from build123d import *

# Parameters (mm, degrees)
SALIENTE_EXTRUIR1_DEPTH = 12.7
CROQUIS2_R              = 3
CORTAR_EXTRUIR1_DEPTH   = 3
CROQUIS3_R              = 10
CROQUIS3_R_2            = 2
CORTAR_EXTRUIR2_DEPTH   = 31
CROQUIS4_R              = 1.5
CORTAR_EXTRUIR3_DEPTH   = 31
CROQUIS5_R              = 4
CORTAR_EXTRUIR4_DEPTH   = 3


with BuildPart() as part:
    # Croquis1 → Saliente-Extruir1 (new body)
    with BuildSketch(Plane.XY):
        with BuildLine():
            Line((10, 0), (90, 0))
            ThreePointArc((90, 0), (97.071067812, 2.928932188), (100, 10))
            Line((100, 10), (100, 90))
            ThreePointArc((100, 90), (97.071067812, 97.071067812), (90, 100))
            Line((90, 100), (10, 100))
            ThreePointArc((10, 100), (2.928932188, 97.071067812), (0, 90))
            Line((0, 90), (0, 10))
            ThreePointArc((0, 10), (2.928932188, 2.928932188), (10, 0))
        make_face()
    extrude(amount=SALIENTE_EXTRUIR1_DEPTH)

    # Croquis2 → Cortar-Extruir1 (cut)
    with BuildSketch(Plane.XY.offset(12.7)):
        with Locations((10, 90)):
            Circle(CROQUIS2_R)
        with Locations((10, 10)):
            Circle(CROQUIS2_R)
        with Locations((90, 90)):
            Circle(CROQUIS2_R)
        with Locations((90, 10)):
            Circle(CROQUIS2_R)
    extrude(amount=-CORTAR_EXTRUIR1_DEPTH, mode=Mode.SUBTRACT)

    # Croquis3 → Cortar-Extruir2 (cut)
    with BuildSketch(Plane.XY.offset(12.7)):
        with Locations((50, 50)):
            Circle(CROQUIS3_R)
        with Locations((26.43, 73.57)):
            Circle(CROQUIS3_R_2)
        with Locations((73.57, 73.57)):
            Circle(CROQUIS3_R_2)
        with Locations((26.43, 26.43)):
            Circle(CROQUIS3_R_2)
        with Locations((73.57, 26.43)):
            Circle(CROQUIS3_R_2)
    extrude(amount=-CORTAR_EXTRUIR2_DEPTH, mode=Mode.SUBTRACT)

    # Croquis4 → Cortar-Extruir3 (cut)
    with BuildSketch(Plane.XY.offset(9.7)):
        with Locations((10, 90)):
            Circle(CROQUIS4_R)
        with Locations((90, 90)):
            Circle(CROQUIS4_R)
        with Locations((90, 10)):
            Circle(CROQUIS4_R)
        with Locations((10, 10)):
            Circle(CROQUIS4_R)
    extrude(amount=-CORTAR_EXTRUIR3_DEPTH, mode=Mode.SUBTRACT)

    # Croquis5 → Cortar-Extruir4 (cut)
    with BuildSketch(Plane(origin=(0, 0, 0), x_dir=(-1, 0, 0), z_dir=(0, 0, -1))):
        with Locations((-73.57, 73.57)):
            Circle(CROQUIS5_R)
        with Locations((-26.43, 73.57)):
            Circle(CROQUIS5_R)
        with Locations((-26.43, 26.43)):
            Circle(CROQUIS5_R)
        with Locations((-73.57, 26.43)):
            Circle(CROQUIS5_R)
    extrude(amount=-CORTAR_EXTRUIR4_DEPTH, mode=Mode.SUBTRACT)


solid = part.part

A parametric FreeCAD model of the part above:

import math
import FreeCAD as App
import Part
import Sketcher
Q = App.Units.Quantity

doc = App.newDocument("Part")
body = doc.addObject("PartDesign::Body", "Body")

# Sketch on XY plane
sketch1 = body.newObject("Sketcher::SketchObject", "Sketch")
sketch1.AttachmentSupport = (doc.getObject("XY_Plane"), [""])
sketch1.MapMode = "FlatFace"
sketch1.addGeometry([
    Part.LineSegment(App.Vector(10, 0, 0), App.Vector(90, 0, 0)),  # 0
    Part.ArcOfCircle(Part.Circle(App.Vector(90, 10, 0), App.Vector(0, 0, 1), 10), math.radians(-90), math.radians(0)),  # 1
    Part.LineSegment(App.Vector(100, 10, 0), App.Vector(100, 90, 0)),  # 2
    Part.ArcOfCircle(Part.Circle(App.Vector(90, 90, 0), App.Vector(0, 0, 1), 10), math.radians(0), math.radians(90)),  # 3
    Part.LineSegment(App.Vector(90, 100, 0), App.Vector(10, 100, 0)),  # 4
    Part.ArcOfCircle(Part.Circle(App.Vector(10, 90, 0), App.Vector(0, 0, 1), 10), math.radians(90), math.radians(180)),  # 5
    Part.LineSegment(App.Vector(0, 90, 0), App.Vector(0, 10, 0)),  # 6
    Part.ArcOfCircle(Part.Circle(App.Vector(10, 10, 0), App.Vector(0, 0, 1), 10), math.radians(180), math.radians(270)),  # 7
], False)
sketch1.addConstraint([
    Sketcher.Constraint("Tangent", 0, 2, 1, 1),
    Sketcher.Constraint("Tangent", 1, 2, 2, 1),
    Sketcher.Constraint("Tangent", 2, 2, 3, 1),
    Sketcher.Constraint("Tangent", 3, 2, 4, 1),
    Sketcher.Constraint("Tangent", 4, 2, 5, 1),
    Sketcher.Constraint("Tangent", 5, 2, 6, 1),
    Sketcher.Constraint("Tangent", 6, 2, 7, 1),
    Sketcher.Constraint("Tangent", 7, 2, 0, 1),
    Sketcher.Constraint("Horizontal", 0),
    Sketcher.Constraint("Vertical", 2),
    Sketcher.Constraint("Horizontal", 4),
    Sketcher.Constraint("Vertical", 6),
    Sketcher.Constraint("Equal", 1, 3),
    Sketcher.Constraint("Equal", 3, 5),
    Sketcher.Constraint("Equal", 5, 7),
    Sketcher.Constraint("PointOnObject", 0, 2, -1),
    Sketcher.Constraint("PointOnObject", 5, 2, -2),
    Sketcher.Constraint("Equal", 4, 2),
    Sketcher.Constraint("Radius", 1, Q("10 mm")),
    Sketcher.Constraint("DistanceX", 0, 1, 0, 2, Q("80 mm")),
])
pad1 = body.newObject("PartDesign::Pad", "Pad")
pad1.Profile = sketch1
pad1.Length = 12.7

# Sketch on XY plane
sketch2 = body.newObject("Sketcher::SketchObject", "Sketch001")
sketch2.AttachmentSupport = (doc.getObject("XY_Plane"), [""])
sketch2.MapMode = "FlatFace"
sketch2.AttachmentOffset = App.Placement(App.Vector(0, 0, 12.7), App.Rotation())
sketch2.addGeometry([
    Part.Circle(App.Vector(10, 90, 0), App.Vector(0, 0, 1), 3),
    Part.Circle(App.Vector(10, 10, 0), App.Vector(0, 0, 1), 3),
    Part.Circle(App.Vector(90, 90, 0), App.Vector(0, 0, 1), 3),
    Part.Circle(App.Vector(90, 10, 0), App.Vector(0, 0, 1), 3),
], False)
sketch2.addConstraint([
    Sketcher.Constraint("Equal", 0, 1),
    Sketcher.Constraint("Equal", 1, 2),
    Sketcher.Constraint("Equal", 2, 3),
    Sketcher.Constraint("Horizontal", 0, 3, 2, 3),
    Sketcher.Constraint("Horizontal", 1, 3, 3, 3),
    Sketcher.Constraint("Vertical", 0, 3, 1, 3),
    Sketcher.Constraint("Vertical", 2, 3, 3, 3),
    Sketcher.Constraint("Diameter", 0, Q("6 mm")),
    Sketcher.Constraint("DistanceX", -1, 1, 0, 3, Q("10 mm")),
    Sketcher.Constraint("DistanceY", -1, 1, 0, 3, Q("90 mm")),
    Sketcher.Constraint("DistanceY", -1, 1, 1, 3, Q("10 mm")),
    Sketcher.Constraint("DistanceX", -1, 1, 2, 3, Q("90 mm")),
])
pocket1 = body.newObject("PartDesign::Pocket", "Pocket")
pocket1.Profile = sketch2
pocket1.Length = 3

# Sketch on XY plane
sketch3 = body.newObject("Sketcher::SketchObject", "Sketch002")
sketch3.AttachmentSupport = (doc.getObject("XY_Plane"), [""])
sketch3.MapMode = "FlatFace"
sketch3.AttachmentOffset = App.Placement(App.Vector(0, 0, 12.7), App.Rotation())
sketch3.addGeometry([
    Part.Circle(App.Vector(50, 50, 0), App.Vector(0, 0, 1), 10),  # 0
    Part.Circle(App.Vector(26.43, 73.57, 0), App.Vector(0, 0, 1), 2),  # 1
    Part.Circle(App.Vector(73.57, 73.57, 0), App.Vector(0, 0, 1), 2),  # 2
    Part.Circle(App.Vector(26.43, 26.43, 0), App.Vector(0, 0, 1), 2),  # 3
    Part.Circle(App.Vector(73.57, 26.43, 0), App.Vector(0, 0, 1), 2),  # 4
], False)
sketch3.addConstraint([
    Sketcher.Constraint("Equal", 1, 2),
    Sketcher.Constraint("Equal", 2, 3),
    Sketcher.Constraint("Equal", 3, 4),
    Sketcher.Constraint("Horizontal", 1, 3, 2, 3),
    Sketcher.Constraint("Horizontal", 3, 3, 4, 3),
    Sketcher.Constraint("Vertical", 1, 3, 3, 3),
    Sketcher.Constraint("Vertical", 2, 3, 4, 3),
    Sketcher.Constraint("Diameter", 0, Q("20 mm")),
    Sketcher.Constraint("Diameter", 1, Q("4 mm")),
    Sketcher.Constraint("DistanceX", -1, 1, 0, 3, Q("50 mm")),
    Sketcher.Constraint("DistanceY", -1, 1, 0, 3, Q("50 mm")),
    Sketcher.Constraint("DistanceX", -1, 1, 1, 3, Q("26.43 mm")),
    Sketcher.Constraint("DistanceY", -1, 1, 1, 3, Q("73.57 mm")),
    Sketcher.Constraint("DistanceX", -1, 1, 2, 3, Q("73.57 mm")),
    Sketcher.Constraint("DistanceY", -1, 1, 3, 3, Q("26.43 mm")),
])
pocket2 = body.newObject("PartDesign::Pocket", "Pocket001")
pocket2.Profile = sketch3
pocket2.Length = 31

# Sketch on XY plane
sketch4 = body.newObject("Sketcher::SketchObject", "Sketch003")
sketch4.AttachmentSupport = (doc.getObject("XY_Plane"), [""])
sketch4.MapMode = "FlatFace"
sketch4.AttachmentOffset = App.Placement(App.Vector(0, 0, 9.7), App.Rotation())
sketch4.addGeometry([
    Part.Circle(App.Vector(10, 90, 0), App.Vector(0, 0, 1), 1.5),
    Part.Circle(App.Vector(90, 90, 0), App.Vector(0, 0, 1), 1.5),
    Part.Circle(App.Vector(90, 10, 0), App.Vector(0, 0, 1), 1.5),
    Part.Circle(App.Vector(10, 10, 0), App.Vector(0, 0, 1), 1.5),
], False)
sketch4.addConstraint([
    Sketcher.Constraint("Equal", 0, 1),
    Sketcher.Constraint("Equal", 1, 2),
    Sketcher.Constraint("Equal", 2, 3),
    Sketcher.Constraint("Horizontal", 0, 3, 1, 3),
    Sketcher.Constraint("Horizontal", 2, 3, 3, 3),
    Sketcher.Constraint("Vertical", 1, 3, 2, 3),
    Sketcher.Constraint("Vertical", 0, 3, 3, 3),
    Sketcher.Constraint("Diameter", 0, Q("3 mm")),
    Sketcher.Constraint("DistanceX", -1, 1, 0, 3, Q("10 mm")),
    Sketcher.Constraint("DistanceY", -1, 1, 0, 3, Q("90 mm")),
    Sketcher.Constraint("DistanceX", -1, 1, 1, 3, Q("90 mm")),
    Sketcher.Constraint("DistanceY", -1, 1, 2, 3, Q("10 mm")),
])
pocket3 = body.newObject("PartDesign::Pocket", "Pocket002")
pocket3.Profile = sketch4
pocket3.Length = 31

# Sketch on XY plane
sketch5 = body.newObject("Sketcher::SketchObject", "Sketch004")
sketch5.AttachmentSupport = (doc.getObject("XY_Plane"), [""])
sketch5.MapMode = "FlatFace"
sketch5.addGeometry([
    Part.Circle(App.Vector(73.57, 73.57, 0), App.Vector(0, 0, 1), 4),
    Part.Circle(App.Vector(26.43, 73.57, 0), App.Vector(0, 0, 1), 4),
    Part.Circle(App.Vector(26.43, 26.43, 0), App.Vector(0, 0, 1), 4),
    Part.Circle(App.Vector(73.57, 26.43, 0), App.Vector(0, 0, 1), 4),
], False)
sketch5.addConstraint([
    Sketcher.Constraint("Equal", 0, 1),
    Sketcher.Constraint("Equal", 1, 2),
    Sketcher.Constraint("Equal", 2, 3),
    Sketcher.Constraint("Horizontal", 0, 3, 1, 3),
    Sketcher.Constraint("Horizontal", 2, 3, 3, 3),
    Sketcher.Constraint("Vertical", 1, 3, 2, 3),
    Sketcher.Constraint("Vertical", 0, 3, 3, 3),
    Sketcher.Constraint("Diameter", 0, Q("8 mm")),
    Sketcher.Constraint("DistanceX", -1, 1, 0, 3, Q("73.57 mm")),
    Sketcher.Constraint("DistanceY", -1, 1, 0, 3, Q("73.57 mm")),
    Sketcher.Constraint("DistanceX", -1, 1, 1, 3, Q("26.43 mm")),
    Sketcher.Constraint("DistanceY", -1, 1, 2, 3, Q("26.43 mm")),
])
pocket4 = body.newObject("PartDesign::Pocket", "Pocket003")
pocket4.Profile = sketch5
pocket4.Length = 3
pocket4.Reversed = True

doc.recompute()
